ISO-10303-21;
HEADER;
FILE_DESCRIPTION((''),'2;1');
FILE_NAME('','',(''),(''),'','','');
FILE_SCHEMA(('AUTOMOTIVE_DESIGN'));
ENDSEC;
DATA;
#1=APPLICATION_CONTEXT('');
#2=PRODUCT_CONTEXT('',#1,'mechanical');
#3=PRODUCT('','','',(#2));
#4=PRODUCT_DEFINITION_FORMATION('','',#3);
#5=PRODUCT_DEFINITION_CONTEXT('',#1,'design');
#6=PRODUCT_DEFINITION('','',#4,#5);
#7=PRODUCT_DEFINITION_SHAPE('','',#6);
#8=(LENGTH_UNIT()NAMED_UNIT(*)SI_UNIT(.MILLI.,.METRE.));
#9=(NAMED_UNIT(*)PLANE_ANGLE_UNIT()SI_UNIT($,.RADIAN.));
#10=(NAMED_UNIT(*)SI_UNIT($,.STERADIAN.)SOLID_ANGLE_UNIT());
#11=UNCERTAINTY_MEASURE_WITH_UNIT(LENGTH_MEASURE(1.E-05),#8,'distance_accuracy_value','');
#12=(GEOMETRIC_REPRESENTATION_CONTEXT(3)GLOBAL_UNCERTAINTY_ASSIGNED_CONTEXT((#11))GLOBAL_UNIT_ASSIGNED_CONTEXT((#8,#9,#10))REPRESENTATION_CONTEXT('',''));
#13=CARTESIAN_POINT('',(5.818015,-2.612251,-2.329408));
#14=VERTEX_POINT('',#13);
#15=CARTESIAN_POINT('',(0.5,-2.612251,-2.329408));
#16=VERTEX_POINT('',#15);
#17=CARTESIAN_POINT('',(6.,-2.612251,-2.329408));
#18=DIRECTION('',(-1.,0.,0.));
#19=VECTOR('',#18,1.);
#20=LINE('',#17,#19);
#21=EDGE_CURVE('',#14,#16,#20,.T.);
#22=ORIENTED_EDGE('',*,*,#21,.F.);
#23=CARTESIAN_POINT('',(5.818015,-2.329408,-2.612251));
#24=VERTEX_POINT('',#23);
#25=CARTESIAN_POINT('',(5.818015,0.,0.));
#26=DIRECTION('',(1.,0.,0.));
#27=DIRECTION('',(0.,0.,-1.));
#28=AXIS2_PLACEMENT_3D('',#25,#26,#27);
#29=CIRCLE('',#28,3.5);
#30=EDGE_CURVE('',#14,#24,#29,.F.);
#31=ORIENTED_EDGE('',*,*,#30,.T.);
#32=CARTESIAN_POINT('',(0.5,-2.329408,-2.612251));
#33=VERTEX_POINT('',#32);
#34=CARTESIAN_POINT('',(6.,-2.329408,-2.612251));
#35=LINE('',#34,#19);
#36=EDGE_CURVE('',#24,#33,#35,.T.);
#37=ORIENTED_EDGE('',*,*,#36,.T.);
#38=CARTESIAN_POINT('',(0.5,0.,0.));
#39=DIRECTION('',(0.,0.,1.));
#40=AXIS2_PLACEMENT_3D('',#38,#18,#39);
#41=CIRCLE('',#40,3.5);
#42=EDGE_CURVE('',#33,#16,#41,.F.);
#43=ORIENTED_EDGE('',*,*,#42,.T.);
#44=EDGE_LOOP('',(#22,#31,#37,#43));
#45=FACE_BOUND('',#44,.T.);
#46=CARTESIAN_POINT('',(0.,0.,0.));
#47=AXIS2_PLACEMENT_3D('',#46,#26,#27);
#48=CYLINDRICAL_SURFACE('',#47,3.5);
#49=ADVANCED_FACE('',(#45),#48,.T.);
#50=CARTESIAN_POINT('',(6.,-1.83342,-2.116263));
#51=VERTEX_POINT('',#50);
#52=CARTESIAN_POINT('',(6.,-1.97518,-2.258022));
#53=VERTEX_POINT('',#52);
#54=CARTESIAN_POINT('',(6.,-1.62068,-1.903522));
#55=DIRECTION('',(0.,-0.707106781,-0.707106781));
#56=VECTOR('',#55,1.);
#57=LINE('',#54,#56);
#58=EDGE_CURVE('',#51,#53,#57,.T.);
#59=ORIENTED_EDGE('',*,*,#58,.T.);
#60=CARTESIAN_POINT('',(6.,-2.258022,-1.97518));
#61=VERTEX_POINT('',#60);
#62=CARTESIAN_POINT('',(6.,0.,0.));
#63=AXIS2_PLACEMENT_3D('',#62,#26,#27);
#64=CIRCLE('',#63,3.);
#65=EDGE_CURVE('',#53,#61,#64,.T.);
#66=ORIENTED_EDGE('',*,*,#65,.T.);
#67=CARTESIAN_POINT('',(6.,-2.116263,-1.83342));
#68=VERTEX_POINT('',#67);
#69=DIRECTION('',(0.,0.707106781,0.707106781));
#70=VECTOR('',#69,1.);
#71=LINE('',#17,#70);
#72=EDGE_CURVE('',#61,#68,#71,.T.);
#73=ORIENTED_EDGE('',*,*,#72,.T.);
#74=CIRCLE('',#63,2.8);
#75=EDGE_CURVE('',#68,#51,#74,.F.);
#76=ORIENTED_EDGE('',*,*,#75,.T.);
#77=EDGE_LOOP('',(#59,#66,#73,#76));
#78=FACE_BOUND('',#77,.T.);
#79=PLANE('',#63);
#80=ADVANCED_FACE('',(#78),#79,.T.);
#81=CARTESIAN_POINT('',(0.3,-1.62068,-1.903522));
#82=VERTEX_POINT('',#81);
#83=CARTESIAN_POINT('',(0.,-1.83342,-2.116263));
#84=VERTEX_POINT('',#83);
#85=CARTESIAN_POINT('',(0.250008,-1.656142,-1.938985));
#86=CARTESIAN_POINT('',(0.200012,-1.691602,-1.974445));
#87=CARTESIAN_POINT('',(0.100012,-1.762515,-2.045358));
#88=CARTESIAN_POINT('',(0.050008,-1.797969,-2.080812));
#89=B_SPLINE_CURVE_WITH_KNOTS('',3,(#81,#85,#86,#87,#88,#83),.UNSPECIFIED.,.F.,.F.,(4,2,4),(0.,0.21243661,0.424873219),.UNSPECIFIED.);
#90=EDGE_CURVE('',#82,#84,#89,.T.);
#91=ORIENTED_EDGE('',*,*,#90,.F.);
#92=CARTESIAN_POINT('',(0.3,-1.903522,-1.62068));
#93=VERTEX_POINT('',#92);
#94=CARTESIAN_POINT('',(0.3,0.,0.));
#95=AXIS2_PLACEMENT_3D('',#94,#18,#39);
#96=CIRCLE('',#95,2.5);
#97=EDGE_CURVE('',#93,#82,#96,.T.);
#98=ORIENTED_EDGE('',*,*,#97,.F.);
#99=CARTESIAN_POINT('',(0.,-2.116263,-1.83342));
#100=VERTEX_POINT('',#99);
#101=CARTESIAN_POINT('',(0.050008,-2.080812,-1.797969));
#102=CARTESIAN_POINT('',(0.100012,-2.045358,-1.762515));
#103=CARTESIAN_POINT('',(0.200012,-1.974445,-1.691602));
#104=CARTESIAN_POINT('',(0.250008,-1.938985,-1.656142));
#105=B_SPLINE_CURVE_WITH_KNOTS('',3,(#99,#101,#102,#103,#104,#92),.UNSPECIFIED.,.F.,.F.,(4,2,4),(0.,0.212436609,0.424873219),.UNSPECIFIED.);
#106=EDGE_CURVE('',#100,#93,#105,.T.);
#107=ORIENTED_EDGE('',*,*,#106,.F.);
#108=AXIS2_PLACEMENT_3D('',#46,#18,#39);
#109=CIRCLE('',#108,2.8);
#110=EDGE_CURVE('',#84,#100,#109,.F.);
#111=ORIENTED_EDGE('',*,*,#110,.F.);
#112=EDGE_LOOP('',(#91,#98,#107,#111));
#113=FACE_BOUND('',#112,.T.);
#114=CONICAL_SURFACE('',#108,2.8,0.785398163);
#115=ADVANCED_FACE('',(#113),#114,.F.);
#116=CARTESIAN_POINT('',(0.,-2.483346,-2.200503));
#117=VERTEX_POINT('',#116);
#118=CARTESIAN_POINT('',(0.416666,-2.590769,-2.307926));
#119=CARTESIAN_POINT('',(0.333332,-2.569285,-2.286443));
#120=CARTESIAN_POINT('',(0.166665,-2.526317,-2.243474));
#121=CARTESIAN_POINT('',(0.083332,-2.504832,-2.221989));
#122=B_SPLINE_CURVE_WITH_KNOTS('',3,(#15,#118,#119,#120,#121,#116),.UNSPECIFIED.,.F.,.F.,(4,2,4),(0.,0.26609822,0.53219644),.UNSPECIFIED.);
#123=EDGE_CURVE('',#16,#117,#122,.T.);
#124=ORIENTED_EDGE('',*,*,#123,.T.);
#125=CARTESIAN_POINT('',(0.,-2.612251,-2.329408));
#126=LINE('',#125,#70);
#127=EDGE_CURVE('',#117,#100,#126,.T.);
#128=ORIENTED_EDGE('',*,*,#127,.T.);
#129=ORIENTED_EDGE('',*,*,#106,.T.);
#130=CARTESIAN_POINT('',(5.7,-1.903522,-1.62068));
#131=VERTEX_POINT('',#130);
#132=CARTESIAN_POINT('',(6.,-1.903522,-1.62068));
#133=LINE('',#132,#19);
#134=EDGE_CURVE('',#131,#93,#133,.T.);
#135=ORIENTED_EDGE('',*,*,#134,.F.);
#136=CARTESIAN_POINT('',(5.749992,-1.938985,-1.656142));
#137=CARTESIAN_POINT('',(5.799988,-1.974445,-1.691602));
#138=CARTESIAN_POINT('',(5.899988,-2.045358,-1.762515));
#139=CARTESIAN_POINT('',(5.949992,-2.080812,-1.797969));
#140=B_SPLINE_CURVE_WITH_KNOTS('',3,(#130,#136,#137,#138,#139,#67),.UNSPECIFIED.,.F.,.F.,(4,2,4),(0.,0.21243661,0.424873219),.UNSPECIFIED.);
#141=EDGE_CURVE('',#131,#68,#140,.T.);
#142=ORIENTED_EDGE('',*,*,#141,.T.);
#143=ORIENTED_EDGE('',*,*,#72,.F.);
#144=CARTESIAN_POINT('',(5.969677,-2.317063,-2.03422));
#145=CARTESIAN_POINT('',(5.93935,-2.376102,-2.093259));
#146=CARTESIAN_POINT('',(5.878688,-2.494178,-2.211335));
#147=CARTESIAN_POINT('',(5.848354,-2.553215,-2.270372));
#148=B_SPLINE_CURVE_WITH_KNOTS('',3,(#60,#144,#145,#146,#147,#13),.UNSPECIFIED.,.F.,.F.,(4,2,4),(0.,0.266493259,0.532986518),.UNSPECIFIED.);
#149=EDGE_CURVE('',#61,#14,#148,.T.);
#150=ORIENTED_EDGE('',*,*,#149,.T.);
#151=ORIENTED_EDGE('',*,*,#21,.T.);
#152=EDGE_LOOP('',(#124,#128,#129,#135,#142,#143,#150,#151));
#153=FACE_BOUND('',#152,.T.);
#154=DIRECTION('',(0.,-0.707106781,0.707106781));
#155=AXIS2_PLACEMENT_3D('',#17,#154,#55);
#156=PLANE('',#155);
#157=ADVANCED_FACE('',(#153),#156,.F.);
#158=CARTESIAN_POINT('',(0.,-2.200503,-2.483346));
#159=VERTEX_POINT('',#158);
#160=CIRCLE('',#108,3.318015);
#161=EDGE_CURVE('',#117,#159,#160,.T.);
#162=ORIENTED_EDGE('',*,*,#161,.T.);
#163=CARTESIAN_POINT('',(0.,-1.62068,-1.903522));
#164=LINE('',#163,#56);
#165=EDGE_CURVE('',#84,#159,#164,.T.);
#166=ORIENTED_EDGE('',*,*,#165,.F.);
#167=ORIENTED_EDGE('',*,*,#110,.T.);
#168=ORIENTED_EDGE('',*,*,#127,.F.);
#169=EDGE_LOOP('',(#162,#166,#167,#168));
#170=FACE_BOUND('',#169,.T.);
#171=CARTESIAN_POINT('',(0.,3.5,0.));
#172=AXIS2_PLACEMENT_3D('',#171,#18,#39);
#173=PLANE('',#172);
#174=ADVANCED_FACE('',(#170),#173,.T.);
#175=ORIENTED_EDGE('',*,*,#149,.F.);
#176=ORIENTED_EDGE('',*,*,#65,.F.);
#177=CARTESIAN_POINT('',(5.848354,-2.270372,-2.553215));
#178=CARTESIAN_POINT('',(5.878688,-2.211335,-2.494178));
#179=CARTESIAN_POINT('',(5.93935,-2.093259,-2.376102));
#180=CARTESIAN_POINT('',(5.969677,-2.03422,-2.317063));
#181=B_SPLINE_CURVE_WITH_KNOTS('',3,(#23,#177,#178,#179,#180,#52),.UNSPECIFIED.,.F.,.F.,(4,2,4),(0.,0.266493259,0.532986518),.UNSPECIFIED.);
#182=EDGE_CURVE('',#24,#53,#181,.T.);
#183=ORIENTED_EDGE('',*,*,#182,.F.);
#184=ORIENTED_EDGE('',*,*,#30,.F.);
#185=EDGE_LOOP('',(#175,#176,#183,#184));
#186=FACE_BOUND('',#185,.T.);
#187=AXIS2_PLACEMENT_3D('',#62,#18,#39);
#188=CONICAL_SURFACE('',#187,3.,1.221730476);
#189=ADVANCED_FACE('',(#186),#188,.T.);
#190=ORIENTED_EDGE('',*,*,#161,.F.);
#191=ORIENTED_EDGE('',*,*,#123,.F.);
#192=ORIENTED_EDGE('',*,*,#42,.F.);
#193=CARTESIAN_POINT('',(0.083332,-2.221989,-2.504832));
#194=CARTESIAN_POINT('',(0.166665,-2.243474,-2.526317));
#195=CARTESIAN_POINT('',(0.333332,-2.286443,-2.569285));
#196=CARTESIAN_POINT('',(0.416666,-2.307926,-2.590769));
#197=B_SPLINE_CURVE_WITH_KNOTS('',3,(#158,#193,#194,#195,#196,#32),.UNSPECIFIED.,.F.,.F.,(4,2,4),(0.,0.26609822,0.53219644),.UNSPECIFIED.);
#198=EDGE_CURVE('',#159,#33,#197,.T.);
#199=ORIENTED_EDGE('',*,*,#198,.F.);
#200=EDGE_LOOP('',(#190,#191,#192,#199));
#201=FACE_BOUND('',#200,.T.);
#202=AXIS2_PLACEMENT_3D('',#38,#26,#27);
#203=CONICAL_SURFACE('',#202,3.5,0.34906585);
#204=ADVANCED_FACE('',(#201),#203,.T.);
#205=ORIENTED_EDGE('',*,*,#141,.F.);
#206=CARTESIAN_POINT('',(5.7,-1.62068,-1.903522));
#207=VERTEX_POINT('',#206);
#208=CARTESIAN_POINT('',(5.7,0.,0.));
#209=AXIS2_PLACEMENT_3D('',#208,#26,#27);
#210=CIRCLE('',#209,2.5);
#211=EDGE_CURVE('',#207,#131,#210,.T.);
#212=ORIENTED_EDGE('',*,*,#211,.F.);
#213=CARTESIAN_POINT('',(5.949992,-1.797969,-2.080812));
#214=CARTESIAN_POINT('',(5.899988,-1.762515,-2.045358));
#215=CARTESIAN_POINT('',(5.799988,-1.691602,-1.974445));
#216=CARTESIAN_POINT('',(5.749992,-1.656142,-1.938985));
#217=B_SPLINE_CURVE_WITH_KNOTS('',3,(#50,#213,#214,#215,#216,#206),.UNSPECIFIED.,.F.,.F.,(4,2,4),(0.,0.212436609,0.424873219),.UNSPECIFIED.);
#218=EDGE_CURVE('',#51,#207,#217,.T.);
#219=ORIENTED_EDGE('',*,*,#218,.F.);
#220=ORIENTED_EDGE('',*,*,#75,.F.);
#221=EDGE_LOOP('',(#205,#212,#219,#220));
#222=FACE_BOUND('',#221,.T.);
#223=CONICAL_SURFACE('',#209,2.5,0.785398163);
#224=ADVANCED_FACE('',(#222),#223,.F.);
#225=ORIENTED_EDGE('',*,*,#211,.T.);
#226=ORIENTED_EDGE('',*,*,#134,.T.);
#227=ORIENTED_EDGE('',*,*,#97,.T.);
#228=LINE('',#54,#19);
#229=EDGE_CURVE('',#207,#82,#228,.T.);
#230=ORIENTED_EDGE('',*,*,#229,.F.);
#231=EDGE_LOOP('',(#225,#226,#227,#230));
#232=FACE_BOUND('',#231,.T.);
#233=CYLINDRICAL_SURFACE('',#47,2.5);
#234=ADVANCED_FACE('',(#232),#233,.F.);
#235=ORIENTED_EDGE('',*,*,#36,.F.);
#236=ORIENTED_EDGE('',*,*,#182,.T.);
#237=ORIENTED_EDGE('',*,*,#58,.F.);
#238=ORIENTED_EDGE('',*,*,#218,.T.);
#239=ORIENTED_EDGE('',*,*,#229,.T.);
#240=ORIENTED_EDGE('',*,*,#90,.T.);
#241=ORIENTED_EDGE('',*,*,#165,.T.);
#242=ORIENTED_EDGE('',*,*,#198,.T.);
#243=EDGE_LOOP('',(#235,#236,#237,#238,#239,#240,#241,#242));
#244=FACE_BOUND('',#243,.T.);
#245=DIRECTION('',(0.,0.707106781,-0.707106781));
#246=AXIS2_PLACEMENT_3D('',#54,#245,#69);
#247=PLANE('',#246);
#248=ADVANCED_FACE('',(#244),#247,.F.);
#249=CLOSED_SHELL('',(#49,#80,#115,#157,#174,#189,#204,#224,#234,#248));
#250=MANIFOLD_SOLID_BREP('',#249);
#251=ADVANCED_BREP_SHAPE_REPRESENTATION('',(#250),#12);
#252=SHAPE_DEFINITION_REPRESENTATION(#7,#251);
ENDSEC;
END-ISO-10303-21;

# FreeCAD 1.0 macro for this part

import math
import FreeCAD as App
import Part
import Sketcher
from FreeCAD import Vector
Q = App.Units.Quantity


def edges_at(feature, points):
    """Names of the edges that pass closest to the given points."""
    edges = feature.Shape.Edges
    near = lambda p: min(range(len(edges)), key=lambda i: edges[i].distToShape(Part.Vertex(*p))[0])
    return sorted({f"Edge{near(p) + 1}" for p in points})

doc = App.newDocument("Part")
body = doc.addObject("PartDesign::Body", "Body")

# Sketch on XY plane
sketch1 = doc.addObject("Sketcher::SketchObject", "Sketch")
body.addObject(sketch1)
sketch1.AttachmentSupport = (doc.XY_Plane, [""])
sketch1.MapMode = "FlatFace"
sketch1.addGeometry([
    Part.LineSegment(Vector(0, 3.5, 0), Vector(0, 0, 0)),
    Part.LineSegment(Vector(0, 0, 0), Vector(6, 0, 0)),
    Part.LineSegment(Vector(6, 0, 0), Vector(6, 3.5, 0)),
    Part.LineSegment(Vector(6, 3.5, 0), Vector(0, 3.5, 0)),
], False)
sketch1.addConstraint([
    Sketcher.Constraint("Coincident", 0, 2, 1, 1),
    Sketcher.Constraint("Coincident", 1, 2, 2, 1),
    Sketcher.Constraint("Coincident", 2, 2, 3, 1),
    Sketcher.Constraint("Coincident", 3, 2, 0, 1),
    Sketcher.Constraint("Vertical", 0),
    Sketcher.Constraint("Horizontal", 1),
    Sketcher.Constraint("Vertical", 2),
    Sketcher.Constraint("Horizontal", 3),
    Sketcher.Constraint("Coincident", 0, 2, -1, 1),
    Sketcher.Constraint("DistanceX", 1, 1, 1, 2, Q("6 mm")),
    Sketcher.Constraint("DistanceY", 0, 2, 0, 1, Q("3.5 mm")),
])
revolution = doc.addObject("PartDesign::Revolution", "Revolution")
body.addObject(revolution)
revolution.Profile = sketch1
revolution.ReferenceAxis = (sketch1, ["H_Axis"])
revolution.Angle = 360

# Sketch on YZ plane
sketch2 = doc.addObject("Sketcher::SketchObject", "Sketch001")
body.addObject(sketch2)
sketch2.AttachmentSupport = (doc.YZ_Plane, [""])
sketch2.MapMode = "FlatFace"
sketch2.addGeometry([
    Part.LineSegment(Vector(-2.61, -2.33, 0), Vector(-1.9, -1.62, 0)),
    Part.ArcOfCircle(Part.Circle(Vector(0, 0, 0), Vector(0, 0, 1), 2.5), math.radians(-139.59), math.radians(-130.41)),
    Part.LineSegment(Vector(-1.62, -1.9, 0), Vector(-2.33, -2.61, 0)),
    Part.ArcOfCircle(Part.Circle(Vector(0, 0, 0), Vector(0, 0, 1), 3.5), math.radians(-138.28), math.radians(-131.72)),
], False)
sketch2.addConstraint([
    Sketcher.Constraint("Coincident", 0, 2, 1, 1),
    Sketcher.Constraint("Coincident", 1, 2, 2, 1),
    Sketcher.Constraint("Coincident", 2, 2, 3, 2),
    Sketcher.Constraint("Coincident", 3, 1, 0, 1),
    Sketcher.Constraint("Coincident", 1, 3, -1, 1),
    Sketcher.Constraint("Coincident", 3, 3, -1, 1),
    Sketcher.Constraint("Parallel", 0, 2),
    Sketcher.Constraint("Equal", 0, 2),
    Sketcher.Constraint("Radius", 1, Q("2.5 mm")),
    Sketcher.Constraint("Radius", 3, Q("3.5 mm")),
    Sketcher.Constraint("Angle", 0, Q("45 deg")),
    Sketcher.Constraint("DistanceY", 0, 2, -1, 1, Q("1.62068 mm")),
])
pocket1 = doc.addObject("PartDesign::Pocket", "Pocket")
body.addObject(pocket1)
pocket1.Profile = sketch2
pocket1.Type = "ThroughAll"
pocket1.Reversed = True

# Sketch on XY plane
sketch3 = doc.addObject("Sketcher::SketchObject", "Sketch002")
body.addObject(sketch3)
sketch3.AttachmentSupport = (doc.XY_Plane, [""])
sketch3.MapMode = "FlatFace"
sketch3.addGeometry([
    Part.LineSegment(Vector(0, 2.5, 0), Vector(0, 0, 0)),
    Part.LineSegment(Vector(0, 0, 0), Vector(6, 0, 0)),
    Part.LineSegment(Vector(6, 0, 0), Vector(6, 2.5, 0)),
    Part.LineSegment(Vector(6, 2.5, 0), Vector(0, 2.5, 0)),
], False)
sketch3.addConstraint([
    Sketcher.Constraint("Coincident", 0, 2, 1, 1),
    Sketcher.Constraint("Coincident", 1, 2, 2, 1),
    Sketcher.Constraint("Coincident", 2, 2, 3, 1),
    Sketcher.Constraint("Coincident", 3, 2, 0, 1),
    Sketcher.Constraint("Vertical", 0),
    Sketcher.Constraint("Horizontal", 1),
    Sketcher.Constraint("Vertical", 2),
    Sketcher.Constraint("Horizontal", 3),
    Sketcher.Constraint("Coincident", 0, 2, -1, 1),
    Sketcher.Constraint("DistanceX", 1, 1, 1, 2, Q("6 mm")),
    Sketcher.Constraint("DistanceY", 0, 2, 0, 1, Q("2.5 mm")),
])
groove = doc.addObject("PartDesign::Groove", "Groove")
body.addObject(groove)
groove.Profile = sketch3
groove.ReferenceAxis = (sketch3, ["H_Axis"])
groove.Angle = 360
doc.recompute()

chamfer = doc.addObject("PartDesign::Chamfer", "Chamfer")
body.addObject(chamfer)
chamfer.Base = (groove, edges_at(groove, [(0, -0.863, 2.346), (6, -0.863, 2.346)]))
chamfer.Size = 0.3
doc.recompute()

chamfer2 = doc.addObject("PartDesign::Chamfer", "Chamfer001")
body.addObject(chamfer2)
chamfer2.Base = (chamfer, edges_at(chamfer, [(0, -1.246, 3.271)]))
chamfer2.ChamferType = "Two distances"
chamfer2.Size = 0.181985
chamfer2.Size2 = 0.5
doc.recompute()

chamfer3 = doc.addObject("PartDesign::Chamfer", "Chamfer002")
body.addObject(chamfer3)
chamfer3.Base = (chamfer2, edges_at(chamfer2, [(6, -1.246, 3.271)]))
chamfer3.ChamferType = "Two distances"
chamfer3.Size = 0.181985
chamfer3.Size2 = 0.5

doc.recompute()
